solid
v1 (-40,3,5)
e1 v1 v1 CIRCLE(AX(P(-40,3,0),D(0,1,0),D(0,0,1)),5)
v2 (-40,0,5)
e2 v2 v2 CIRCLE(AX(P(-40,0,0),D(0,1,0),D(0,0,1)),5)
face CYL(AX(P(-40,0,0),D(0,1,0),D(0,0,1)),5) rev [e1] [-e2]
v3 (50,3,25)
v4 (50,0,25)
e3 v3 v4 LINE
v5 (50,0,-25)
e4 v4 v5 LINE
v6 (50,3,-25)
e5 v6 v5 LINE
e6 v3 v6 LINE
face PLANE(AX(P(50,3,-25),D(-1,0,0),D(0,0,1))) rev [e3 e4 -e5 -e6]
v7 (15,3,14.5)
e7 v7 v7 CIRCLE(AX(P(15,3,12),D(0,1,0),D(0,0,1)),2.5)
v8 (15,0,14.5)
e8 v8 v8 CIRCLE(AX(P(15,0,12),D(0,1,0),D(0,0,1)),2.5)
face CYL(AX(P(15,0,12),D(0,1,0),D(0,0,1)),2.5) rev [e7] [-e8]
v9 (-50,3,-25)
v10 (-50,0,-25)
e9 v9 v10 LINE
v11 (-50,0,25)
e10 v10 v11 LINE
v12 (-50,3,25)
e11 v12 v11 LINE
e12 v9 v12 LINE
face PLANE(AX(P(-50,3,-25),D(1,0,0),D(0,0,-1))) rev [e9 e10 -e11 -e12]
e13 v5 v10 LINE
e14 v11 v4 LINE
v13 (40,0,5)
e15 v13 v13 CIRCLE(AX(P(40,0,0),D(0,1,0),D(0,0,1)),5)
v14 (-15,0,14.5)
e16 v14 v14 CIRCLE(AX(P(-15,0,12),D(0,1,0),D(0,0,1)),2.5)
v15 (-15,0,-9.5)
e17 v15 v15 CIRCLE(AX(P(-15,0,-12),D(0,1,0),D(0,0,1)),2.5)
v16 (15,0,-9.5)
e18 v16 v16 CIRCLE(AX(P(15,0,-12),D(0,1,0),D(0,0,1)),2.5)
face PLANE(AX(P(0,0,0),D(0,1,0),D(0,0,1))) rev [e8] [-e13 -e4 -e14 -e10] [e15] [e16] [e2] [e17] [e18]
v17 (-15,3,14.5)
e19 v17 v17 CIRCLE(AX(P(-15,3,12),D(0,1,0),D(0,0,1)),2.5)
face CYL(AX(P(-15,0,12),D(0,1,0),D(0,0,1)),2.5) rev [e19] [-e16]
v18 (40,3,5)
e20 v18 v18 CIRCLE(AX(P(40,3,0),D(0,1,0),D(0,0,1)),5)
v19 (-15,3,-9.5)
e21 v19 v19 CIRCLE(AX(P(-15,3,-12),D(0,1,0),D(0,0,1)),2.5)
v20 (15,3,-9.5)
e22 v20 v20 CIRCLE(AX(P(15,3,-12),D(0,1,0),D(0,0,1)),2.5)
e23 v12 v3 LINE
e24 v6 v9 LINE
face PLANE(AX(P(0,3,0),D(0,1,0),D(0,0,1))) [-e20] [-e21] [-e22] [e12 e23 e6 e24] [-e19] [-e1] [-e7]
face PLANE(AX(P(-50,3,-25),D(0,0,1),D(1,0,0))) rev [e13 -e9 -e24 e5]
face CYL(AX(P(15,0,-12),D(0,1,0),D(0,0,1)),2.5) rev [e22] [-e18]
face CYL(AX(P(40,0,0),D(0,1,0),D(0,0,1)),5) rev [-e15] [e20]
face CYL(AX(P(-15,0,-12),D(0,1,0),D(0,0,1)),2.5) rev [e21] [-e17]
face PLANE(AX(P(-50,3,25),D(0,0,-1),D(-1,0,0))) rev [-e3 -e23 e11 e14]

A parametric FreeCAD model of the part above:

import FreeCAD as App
import Part
import Sketcher
from FreeCAD import Vector
Q = App.Units.Quantity


def add_polygon(sketch, points):
    """Adds a closed chain of lines whose ends are joined by coincident constraints."""
    first, n = sketch.GeometryCount, len(points)
    for a, b in zip(points, points[1:] + points[:1]):
        sketch.addGeometry(Part.LineSegment(App.Vector(*a, 0), App.Vector(*b, 0)), False)
    for i in range(n):
        sketch.addConstraint(Sketcher.Constraint("Coincident", first + i, 2, first + (i + 1) % n, 1))

doc = App.newDocument("Part")
body = doc.addObject("PartDesign::Body", "Body")

sketch1 = doc.addObject("Sketcher::SketchObject", "Sketch")
body.addObject(sketch1)
sketch1.AttachmentSupport = (doc.XZ_Plane, [""])
sketch1.MapMode = "FlatFace"
add_polygon(sketch1, [(-50, -25), (-50, 25), (50, 25), (50, -25)])
sketch1.addConstraint([
    Sketcher.Constraint("Vertical", 0),
    Sketcher.Constraint("Horizontal", 1),
    Sketcher.Constraint("Vertical", 2),
    Sketcher.Constraint("Horizontal", 3),
    Sketcher.Constraint("Symmetric", 0, 2, 2, 2, -1, 1),
    Sketcher.Constraint("DistanceX", 1, 1, 1, 2, Q("100 mm")),
    Sketcher.Constraint("DistanceY", 0, 1, 0, 2, Q("50 mm")),
])
pad1 = doc.addObject("PartDesign::Pad", "Pad")
body.addObject(pad1)
pad1.Profile = sketch1
pad1.Length = 3
pad1.Reversed = True

sketch2 = doc.addObject("Sketcher::SketchObject", "Sketch001")
body.addObject(sketch2)
sketch2.AttachmentSupport = (doc.XZ_Plane, [""])
sketch2.MapMode = "FlatFace"
sketch2.AttachmentOffset = App.Placement(Vector(0, 0, -3), App.Rotation())
sketch2.addGeometry([
    Part.Circle(Vector(-40, 0, 0), Vector(0, 0, 1), 5),
    Part.Circle(Vector(40, 0, 0), Vector(0, 0, 1), 5),
    Part.Circle(Vector(-15, -12, 0), Vector(0, 0, 1), 2.5),
    Part.Circle(Vector(-15, 12, 0), Vector(0, 0, 1), 2.5),
    Part.Circle(Vector(15, -12, 0), Vector(0, 0, 1), 2.5),
    Part.Circle(Vector(15, 12, 0), Vector(0, 0, 1), 2.5),
], False)
sketch2.addConstraint([
    Sketcher.Constraint("Equal", 0, 1),
    Sketcher.Constraint("Equal", 2, 3),
    Sketcher.Constraint("Equal", 3, 4),
    Sketcher.Constraint("Equal", 4, 5),
    Sketcher.Constraint("Symmetric", 0, 3, 1, 3, -1, 1),
    Sketcher.Constraint("Symmetric", 3, 3, 4, 3, -1, 1),
    Sketcher.Constraint("Symmetric", 2, 3, 5, 3, -1, 1),
    Sketcher.Constraint("Symmetric", 2, 3, 4, 3, -2),
    Sketcher.Constraint("PointOnObject", 0, 3, -1),
    Sketcher.Constraint("Diameter", 0, Q("10 mm")),
    Sketcher.Constraint("Diameter", 2, Q("5 mm")),
    Sketcher.Constraint("DistanceX", 0, 3, -1, 1, Q("40 mm")),
    Sketcher.Constraint("DistanceX", 2, 3, -1, 1, Q("15 mm")),
    Sketcher.Constraint("DistanceY", 2, 3, -1, 1, Q("12 mm")),
])
pocket1 = doc.addObject("PartDesign::Pocket", "Pocket")
body.addObject(pocket1)
pocket1.Profile = sketch2
pocket1.Length = 3
pocket1.Reversed = True

doc.recompute()
